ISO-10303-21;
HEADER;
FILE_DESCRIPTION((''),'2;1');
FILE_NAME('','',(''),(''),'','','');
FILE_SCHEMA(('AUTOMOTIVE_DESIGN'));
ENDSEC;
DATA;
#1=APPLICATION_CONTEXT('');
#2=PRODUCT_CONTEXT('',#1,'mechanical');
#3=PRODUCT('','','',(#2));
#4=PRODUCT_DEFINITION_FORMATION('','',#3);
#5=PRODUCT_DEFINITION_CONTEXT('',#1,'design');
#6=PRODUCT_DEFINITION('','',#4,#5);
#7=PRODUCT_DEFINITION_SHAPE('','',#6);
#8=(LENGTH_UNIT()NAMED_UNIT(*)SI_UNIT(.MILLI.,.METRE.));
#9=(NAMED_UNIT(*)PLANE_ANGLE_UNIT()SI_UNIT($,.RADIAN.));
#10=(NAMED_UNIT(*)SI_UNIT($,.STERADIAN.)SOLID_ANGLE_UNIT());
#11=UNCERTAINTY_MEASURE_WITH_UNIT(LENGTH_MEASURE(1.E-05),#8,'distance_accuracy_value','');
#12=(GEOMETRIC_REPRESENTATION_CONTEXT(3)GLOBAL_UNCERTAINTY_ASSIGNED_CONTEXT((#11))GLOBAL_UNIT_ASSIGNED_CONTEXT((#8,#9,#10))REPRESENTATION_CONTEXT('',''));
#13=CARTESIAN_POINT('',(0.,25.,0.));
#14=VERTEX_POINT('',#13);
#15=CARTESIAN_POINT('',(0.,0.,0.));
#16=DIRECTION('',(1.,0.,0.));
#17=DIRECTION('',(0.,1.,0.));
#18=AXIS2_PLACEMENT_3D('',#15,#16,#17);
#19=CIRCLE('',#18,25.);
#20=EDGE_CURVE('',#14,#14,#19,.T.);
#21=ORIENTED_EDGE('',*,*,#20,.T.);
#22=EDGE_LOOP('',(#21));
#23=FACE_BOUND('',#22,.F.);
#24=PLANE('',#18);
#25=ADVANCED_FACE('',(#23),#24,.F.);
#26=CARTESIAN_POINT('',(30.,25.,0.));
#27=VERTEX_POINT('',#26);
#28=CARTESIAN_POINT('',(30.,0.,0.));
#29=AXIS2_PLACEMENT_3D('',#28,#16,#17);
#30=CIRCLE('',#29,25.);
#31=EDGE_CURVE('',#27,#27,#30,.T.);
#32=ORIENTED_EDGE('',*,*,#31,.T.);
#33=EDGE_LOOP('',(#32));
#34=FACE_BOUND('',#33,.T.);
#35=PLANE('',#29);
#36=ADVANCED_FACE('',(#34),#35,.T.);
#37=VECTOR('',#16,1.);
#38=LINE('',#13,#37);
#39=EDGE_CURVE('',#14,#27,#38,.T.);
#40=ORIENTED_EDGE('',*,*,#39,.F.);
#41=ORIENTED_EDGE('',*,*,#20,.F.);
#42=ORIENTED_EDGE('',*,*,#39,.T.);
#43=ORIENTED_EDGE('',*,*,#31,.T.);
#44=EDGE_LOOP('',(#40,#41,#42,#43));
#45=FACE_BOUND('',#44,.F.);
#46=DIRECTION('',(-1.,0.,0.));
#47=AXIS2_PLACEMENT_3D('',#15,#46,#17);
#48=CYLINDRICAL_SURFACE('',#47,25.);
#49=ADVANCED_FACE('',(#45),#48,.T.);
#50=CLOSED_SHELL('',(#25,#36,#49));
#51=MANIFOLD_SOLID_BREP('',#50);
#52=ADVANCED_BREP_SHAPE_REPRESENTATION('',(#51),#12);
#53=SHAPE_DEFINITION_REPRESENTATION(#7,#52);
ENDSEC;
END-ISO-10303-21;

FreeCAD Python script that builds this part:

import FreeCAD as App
import Part
import Sketcher
Q = App.Units.Quantity

doc = App.newDocument("Part")
body = doc.addObject("PartDesign::Body", "Body")

# Sketch on YZ plane
sketch1 = body.newObject("Sketcher::SketchObject", "Sketch")
sketch1.AttachmentSupport = (doc.getObject("YZ_Plane"), [""])
sketch1.MapMode = "FlatFace"
sketch1.addGeometry(Part.Circle(App.Vector(0, 0, 0), App.Vector(0, 0, 1), 25), False)
sketch1.addConstraint(Sketcher.Constraint("Coincident", 0, 3, -1, 1))
sketch1.addConstraint(Sketcher.Constraint("Diameter", 0, Q("50 mm")))
pad1 = body.newObject("PartDesign::Pad", "Pad")
pad1.Profile = sketch1
pad1.Length = 30

doc.recompute()
